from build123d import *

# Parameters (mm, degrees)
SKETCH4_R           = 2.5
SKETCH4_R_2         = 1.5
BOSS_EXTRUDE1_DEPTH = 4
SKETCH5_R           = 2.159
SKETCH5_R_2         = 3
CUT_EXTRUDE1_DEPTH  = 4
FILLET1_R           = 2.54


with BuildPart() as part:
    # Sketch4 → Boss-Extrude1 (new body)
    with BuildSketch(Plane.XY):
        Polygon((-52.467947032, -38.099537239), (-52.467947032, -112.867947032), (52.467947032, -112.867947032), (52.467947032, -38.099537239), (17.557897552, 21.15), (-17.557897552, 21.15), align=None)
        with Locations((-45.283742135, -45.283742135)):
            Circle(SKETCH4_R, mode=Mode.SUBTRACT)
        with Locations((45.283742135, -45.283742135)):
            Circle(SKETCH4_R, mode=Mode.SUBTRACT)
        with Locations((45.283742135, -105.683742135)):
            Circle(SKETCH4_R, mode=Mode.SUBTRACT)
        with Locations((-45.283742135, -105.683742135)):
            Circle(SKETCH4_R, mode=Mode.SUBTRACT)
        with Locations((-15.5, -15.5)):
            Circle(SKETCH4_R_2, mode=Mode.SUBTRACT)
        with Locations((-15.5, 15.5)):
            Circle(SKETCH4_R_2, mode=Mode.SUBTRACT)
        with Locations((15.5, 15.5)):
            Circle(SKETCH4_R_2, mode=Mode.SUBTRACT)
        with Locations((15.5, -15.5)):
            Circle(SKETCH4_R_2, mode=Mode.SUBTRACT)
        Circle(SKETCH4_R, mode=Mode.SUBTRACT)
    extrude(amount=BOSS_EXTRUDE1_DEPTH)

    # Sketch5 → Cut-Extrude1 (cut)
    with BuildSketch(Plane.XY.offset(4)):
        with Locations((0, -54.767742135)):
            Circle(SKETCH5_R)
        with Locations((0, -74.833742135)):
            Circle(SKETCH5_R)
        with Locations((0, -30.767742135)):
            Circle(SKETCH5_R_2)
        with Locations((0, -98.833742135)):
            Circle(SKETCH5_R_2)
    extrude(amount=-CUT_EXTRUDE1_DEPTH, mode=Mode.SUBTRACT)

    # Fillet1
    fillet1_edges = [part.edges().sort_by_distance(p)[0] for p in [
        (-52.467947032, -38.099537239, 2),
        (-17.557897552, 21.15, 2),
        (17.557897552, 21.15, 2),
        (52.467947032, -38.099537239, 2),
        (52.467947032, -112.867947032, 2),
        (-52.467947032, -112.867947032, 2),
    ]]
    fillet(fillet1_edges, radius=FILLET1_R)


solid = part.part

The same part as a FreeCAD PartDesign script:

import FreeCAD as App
import Part
import Sketcher
from FreeCAD import Vector


def edges_at(feature, points):
    """Names of the edges that pass closest to the given points."""
    edges = feature.Shape.Edges
    near = lambda p: min(range(len(edges)), key=lambda i: edges[i].distToShape(Part.Vertex(*p))[0])
    return sorted({f"Edge{near(p) + 1}" for p in points})

doc = App.newDocument("Part")
params = doc.addObject("Spreadsheet::Sheet", "Params")
for row, (alias, value) in enumerate([
    ("sketch1_diameter", "5 mm"),
    ("sketch1_diameter2", "3 mm"),
    ("pad1_length", "4 mm"),
    ("sketch2_diameter", "6 mm"),
    ("pocket1_length", "4 mm"),
    ("fillet_radius", "2.54 mm"),
], start=1):
    params.set(f"A{row}", alias)
    params.set(f"B{row}", "=" + value)
    params.setAlias(f"B{row}", alias)

body = doc.addObject("PartDesign::Body", "Body")

sketch1 = body.newObject("Sketcher::SketchObject", "Sketch")
sketch1.AttachmentSupport = (doc.getObject("XY_Plane"), [""])
sketch1.MapMode = "FlatFace"
sketch1.addGeometry([
    Part.LineSegment(Vector(-52.5, -38.1, 0), Vector(-52.5, -112.9, 0)),
    Part.LineSegment(Vector(-52.5, -112.9, 0), Vector(52.5, -112.9, 0)),
    Part.LineSegment(Vector(52.5, -112.9, 0), Vector(52.5, -38.1, 0)),
    Part.LineSegment(Vector(52.5, -38.1, 0), Vector(17.6, 21.1, 0)),
    Part.LineSegment(Vector(17.6, 21.1, 0), Vector(-17.6, 21.1, 0)),
    Part.LineSegment(Vector(-17.6, 21.1, 0), Vector(-52.5, -38.1, 0)),
    Part.Circle(Vector(-45.3, -105.7, 0), Vector(0, 0, 1), 2.5),
    Part.Circle(Vector(45.3, -105.7, 0), Vector(0, 0, 1), 2.5),
    Part.Circle(Vector(-45.3, -45.3, 0), Vector(0, 0, 1), 2.5),
    Part.Circle(Vector(-15.5, -15.5, 0), Vector(0, 0, 1), 1.5),
    Part.Circle(Vector(-15.5, 15.5, 0), Vector(0, 0, 1), 1.5),
    Part.Circle(Vector(15.5, -15.5, 0), Vector(0, 0, 1), 1.5),
    Part.Circle(Vector(45.3, -45.3, 0), Vector(0, 0, 1), 2.5),
    Part.Circle(Vector(0, 0, 0), Vector(0, 0, 1), 2.5),
    Part.Circle(Vector(15.5, 15.5, 0), Vector(0, 0, 1), 1.5),
], False)
sketch1.addConstraint([
    Sketcher.Constraint("Coincident", 0, 2, 1, 1),
    Sketcher.Constraint("Coincident", 1, 2, 2, 1),
    Sketcher.Constraint("Coincident", 2, 2, 3, 1),
    Sketcher.Constraint("Coincident", 3, 2, 4, 1),
    Sketcher.Constraint("Coincident", 4, 2, 5, 1),
    Sketcher.Constraint("Coincident", 5, 2, 0, 1),
    Sketcher.Constraint("Vertical", 0),
    Sketcher.Constraint("Horizontal", 1),
    Sketcher.Constraint("Vertical", 2),
    Sketcher.Constraint("Horizontal", 4),
    Sketcher.Constraint("Coincident", 13, 3, -1, 1),
    Sketcher.Constraint("Equal", 6, 7),
    Sketcher.Constraint("Equal", 7, 8),
    Sketcher.Constraint("Equal", 9, 10),
    Sketcher.Constraint("Equal", 10, 11),
    Sketcher.Constraint("Equal", 8, 12),
    Sketcher.Constraint("Equal", 12, 13),
    Sketcher.Constraint("Equal", 11, 14),
    Sketcher.Constraint("Symmetric", 10, 3, 11, 3, -1, 1),
    Sketcher.Constraint("Symmetric", 9, 3, 14, 3, -1, 1),
    Sketcher.Constraint("Symmetric", 6, 3, 7, 3, -2),
    Sketcher.Constraint("Symmetric", 9, 3, 11, 3, -2),
    Sketcher.Constraint("Symmetric", 8, 3, 12, 3, -2),
    Sketcher.Constraint("Symmetric", 2, 2, 5, 2, -2),
    Sketcher.Constraint("Vertical", 6, 3, 8, 3),
    Sketcher.Constraint("Equal", 3, 5),
    Sketcher.Constraint("Diameter", 6, 5.0),
    Sketcher.Constraint("Diameter", 9, 3.0),
    Sketcher.Constraint("DistanceY", 9, 3, 10, 3, 31.0),
    Sketcher.Constraint("DistanceX", 9, 3, 11, 3, 31.0),
    Sketcher.Constraint("DistanceY", 6, 3, 8, 3, 60.4),
    Sketcher.Constraint("DistanceY", -1, 1, 3, 2, 21.15),
    Sketcher.Constraint("DistanceY", 0, 2, 0, 1, 74.76841),
    Sketcher.Constraint("Distance", 3, 68.769319),
    Sketcher.Constraint("DistanceX", 1, 1, 1, 2, 104.935894),
    Sketcher.Constraint("DistanceX", 4, 2, 4, 1, 35.115795),
    Sketcher.Constraint("DistanceX", 0, 2, 7, 3, 97.751689),
    Sketcher.Constraint("DistanceY", 6, 3, -1, 1, 105.683742),
])
sketch1.setExpression("Constraints[26]", "Params.sketch1_diameter")
sketch1.setExpression("Constraints[27]", "Params.sketch1_diameter2")
pad1 = body.newObject("PartDesign::Pad", "Pad")
pad1.Profile = sketch1
pad1.setExpression("Length", "Params.pad1_length")

sketch2 = body.newObject("Sketcher::SketchObject", "Sketch001")
sketch2.AttachmentSupport = (doc.getObject("XY_Plane"), [""])
sketch2.MapMode = "FlatFace"
sketch2.AttachmentOffset = App.Placement(Vector(0, 0, 4), App.Rotation())
sketch2.addGeometry([
    Part.Circle(Vector(0, -54.8, 0), Vector(0, 0, 1), 2.2),
    Part.Circle(Vector(0, -74.8, 0), Vector(0, 0, 1), 2.2),
    Part.Circle(Vector(0, -30.8, 0), Vector(0, 0, 1), 3),
    Part.Circle(Vector(0, -98.8, 0), Vector(0, 0, 1), 3),
], False)
sketch2.addConstraint([
    Sketcher.Constraint("Equal", 0, 1),
    Sketcher.Constraint("Equal", 2, 3),
    Sketcher.Constraint("PointOnObject", 0, 3, -2),
    Sketcher.Constraint("PointOnObject", 1, 3, -2),
    Sketcher.Constraint("PointOnObject", 2, 3, -2),
    Sketcher.Constraint("PointOnObject", 3, 3, -2),
    Sketcher.Constraint("Diameter", 2, 6.0),
    Sketcher.Constraint("Diameter", 0, 4.318),
    Sketcher.Constraint("DistanceY", 0, 3, 2, 3, 24.0),
    Sketcher.Constraint("DistanceY", 3, 3, 1, 3, 24.0),
    Sketcher.Constraint("DistanceY", 1, 3, 0, 3, 20.066),
    Sketcher.Constraint("DistanceY", 0, 3, -1, 1, 54.767742),
])
sketch2.setExpression("Constraints[6]", "Params.sketch2_diameter")
pocket1 = body.newObject("PartDesign::Pocket", "Pocket")
pocket1.Profile = sketch2
pocket1.setExpression("Length", "Params.pocket1_length")
doc.recompute()

fillet = body.newObject("PartDesign::Fillet", "Fillet")
fillet.Base = (pocket1, edges_at(pocket1, [
    (-52.468, -38.1, 2),
    (-17.558, 21.15, 2),
    (17.558, 21.15, 2),
    (52.468, -38.1, 2),
    (52.468, -112.868, 2),
    (-52.468, -112.868, 2),
]))
fillet.setExpression("Radius", "Params.fillet_radius")

doc.recompute()
